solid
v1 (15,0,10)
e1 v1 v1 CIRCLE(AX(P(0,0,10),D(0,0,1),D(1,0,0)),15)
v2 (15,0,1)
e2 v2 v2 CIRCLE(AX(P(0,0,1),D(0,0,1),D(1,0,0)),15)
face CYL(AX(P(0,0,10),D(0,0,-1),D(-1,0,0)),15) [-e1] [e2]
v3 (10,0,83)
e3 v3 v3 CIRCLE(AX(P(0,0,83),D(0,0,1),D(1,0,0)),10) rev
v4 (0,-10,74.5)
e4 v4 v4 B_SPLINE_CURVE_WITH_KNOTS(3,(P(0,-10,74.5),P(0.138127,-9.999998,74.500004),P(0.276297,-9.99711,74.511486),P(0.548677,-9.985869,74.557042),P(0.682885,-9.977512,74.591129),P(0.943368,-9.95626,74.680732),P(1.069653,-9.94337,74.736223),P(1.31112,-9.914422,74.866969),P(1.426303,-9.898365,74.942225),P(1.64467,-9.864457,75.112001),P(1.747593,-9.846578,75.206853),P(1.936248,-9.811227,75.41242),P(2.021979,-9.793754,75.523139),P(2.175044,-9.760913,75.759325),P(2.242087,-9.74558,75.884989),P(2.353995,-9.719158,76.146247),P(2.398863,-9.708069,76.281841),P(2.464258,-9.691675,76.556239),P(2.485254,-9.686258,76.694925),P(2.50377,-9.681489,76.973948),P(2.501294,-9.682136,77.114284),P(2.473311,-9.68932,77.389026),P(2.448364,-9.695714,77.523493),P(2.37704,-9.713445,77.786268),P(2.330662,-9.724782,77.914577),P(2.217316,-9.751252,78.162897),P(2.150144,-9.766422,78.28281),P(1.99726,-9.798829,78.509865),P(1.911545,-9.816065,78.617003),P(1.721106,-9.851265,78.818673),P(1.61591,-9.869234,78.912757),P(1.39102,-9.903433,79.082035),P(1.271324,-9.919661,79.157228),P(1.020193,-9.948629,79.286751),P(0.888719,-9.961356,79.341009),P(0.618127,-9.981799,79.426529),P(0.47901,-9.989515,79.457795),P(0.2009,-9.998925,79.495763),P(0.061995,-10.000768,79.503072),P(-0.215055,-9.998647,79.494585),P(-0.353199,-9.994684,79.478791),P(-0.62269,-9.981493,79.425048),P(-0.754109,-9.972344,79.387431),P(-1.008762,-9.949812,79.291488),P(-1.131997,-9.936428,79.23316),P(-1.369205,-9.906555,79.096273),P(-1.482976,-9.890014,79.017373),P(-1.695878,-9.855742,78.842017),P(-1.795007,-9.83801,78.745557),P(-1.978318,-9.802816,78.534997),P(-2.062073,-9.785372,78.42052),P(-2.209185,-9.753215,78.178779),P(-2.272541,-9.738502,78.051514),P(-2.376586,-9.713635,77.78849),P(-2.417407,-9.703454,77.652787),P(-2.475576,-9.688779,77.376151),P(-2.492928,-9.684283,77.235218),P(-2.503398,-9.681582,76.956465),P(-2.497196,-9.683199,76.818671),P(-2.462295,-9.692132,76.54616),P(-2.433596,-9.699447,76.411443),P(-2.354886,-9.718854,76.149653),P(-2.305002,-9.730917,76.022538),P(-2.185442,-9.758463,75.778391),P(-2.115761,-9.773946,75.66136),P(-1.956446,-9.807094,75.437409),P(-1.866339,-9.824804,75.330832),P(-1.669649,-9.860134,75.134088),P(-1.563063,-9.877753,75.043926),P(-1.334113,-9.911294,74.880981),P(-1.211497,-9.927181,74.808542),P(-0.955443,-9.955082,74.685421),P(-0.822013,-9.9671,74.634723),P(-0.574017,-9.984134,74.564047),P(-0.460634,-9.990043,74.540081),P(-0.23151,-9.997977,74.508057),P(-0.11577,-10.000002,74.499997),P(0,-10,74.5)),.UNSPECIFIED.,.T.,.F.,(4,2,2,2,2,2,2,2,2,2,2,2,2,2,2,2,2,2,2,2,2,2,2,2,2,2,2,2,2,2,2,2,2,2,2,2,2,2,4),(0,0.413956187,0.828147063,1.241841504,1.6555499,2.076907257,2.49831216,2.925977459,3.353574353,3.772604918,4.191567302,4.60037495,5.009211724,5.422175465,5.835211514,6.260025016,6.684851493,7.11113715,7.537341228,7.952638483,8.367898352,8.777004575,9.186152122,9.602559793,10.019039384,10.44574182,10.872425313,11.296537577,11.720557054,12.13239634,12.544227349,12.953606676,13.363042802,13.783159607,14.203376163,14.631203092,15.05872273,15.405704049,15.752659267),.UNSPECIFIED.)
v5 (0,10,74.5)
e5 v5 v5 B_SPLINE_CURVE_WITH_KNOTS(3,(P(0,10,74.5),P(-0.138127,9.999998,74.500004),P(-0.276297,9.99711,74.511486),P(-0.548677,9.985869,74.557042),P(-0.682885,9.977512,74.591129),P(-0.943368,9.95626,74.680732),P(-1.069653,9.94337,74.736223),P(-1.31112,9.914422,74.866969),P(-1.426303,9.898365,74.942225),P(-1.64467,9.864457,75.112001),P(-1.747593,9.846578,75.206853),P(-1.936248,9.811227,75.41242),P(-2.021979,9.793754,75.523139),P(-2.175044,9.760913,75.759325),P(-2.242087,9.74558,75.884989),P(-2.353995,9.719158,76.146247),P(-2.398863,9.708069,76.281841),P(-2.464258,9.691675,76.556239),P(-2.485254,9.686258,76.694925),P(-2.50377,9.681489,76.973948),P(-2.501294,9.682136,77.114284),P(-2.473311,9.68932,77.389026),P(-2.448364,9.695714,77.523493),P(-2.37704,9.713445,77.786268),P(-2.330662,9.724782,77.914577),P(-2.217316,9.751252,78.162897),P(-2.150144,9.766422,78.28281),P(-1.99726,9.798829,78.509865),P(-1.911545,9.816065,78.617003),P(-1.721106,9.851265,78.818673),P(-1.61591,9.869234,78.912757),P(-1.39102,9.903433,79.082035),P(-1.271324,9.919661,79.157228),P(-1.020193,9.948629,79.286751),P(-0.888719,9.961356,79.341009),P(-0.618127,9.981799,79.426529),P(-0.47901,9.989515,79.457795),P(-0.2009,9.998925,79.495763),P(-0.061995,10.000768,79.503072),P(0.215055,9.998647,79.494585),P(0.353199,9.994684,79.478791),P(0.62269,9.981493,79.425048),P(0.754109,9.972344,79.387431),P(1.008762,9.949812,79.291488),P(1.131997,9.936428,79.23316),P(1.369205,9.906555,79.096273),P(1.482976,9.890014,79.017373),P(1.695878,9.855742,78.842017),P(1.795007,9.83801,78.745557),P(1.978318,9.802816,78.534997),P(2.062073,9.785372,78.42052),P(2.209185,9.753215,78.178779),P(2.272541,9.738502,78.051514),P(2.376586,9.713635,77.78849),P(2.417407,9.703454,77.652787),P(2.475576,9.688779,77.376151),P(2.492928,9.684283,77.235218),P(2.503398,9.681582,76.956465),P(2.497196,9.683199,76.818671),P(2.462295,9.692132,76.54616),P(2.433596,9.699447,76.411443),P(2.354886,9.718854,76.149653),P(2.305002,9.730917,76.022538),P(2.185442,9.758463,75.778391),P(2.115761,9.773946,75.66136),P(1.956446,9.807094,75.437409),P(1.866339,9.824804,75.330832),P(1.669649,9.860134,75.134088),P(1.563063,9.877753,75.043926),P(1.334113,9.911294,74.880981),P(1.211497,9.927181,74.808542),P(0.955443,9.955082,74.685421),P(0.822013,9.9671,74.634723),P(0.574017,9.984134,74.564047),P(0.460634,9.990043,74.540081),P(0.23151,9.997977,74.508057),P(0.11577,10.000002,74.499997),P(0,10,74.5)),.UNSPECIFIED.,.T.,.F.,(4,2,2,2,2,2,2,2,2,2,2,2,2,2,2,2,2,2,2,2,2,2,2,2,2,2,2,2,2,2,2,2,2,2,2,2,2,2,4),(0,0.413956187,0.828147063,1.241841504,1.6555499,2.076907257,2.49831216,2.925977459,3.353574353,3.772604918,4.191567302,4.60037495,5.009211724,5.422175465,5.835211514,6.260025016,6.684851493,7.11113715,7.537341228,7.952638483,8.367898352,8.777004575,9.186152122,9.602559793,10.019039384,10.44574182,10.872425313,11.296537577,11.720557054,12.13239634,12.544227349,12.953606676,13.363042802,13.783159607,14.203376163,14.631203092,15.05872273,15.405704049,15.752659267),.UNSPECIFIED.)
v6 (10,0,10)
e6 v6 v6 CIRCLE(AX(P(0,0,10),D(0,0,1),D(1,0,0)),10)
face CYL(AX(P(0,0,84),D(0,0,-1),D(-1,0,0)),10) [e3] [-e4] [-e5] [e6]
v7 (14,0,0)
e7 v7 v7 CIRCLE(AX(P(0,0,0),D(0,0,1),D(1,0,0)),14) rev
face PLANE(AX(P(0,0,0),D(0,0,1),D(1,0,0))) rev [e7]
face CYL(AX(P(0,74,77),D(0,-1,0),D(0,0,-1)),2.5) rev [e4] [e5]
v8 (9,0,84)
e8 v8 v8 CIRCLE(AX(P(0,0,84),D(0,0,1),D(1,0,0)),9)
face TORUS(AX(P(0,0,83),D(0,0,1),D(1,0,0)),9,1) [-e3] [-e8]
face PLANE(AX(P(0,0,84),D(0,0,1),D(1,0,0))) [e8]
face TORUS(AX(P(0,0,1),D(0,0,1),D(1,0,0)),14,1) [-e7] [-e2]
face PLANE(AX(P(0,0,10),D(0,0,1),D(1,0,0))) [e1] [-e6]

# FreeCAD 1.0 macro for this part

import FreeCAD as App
import Part
import Sketcher
from FreeCAD import Vector


def edges_at(feature, points):
    """Names of the edges that pass closest to the given points."""
    edges = feature.Shape.Edges
    near = lambda p: min(range(len(edges)), key=lambda i: edges[i].distToShape(Part.Vertex(*p))[0])
    return sorted({f"Edge{near(p) + 1}" for p in points})

doc = App.newDocument("Part")
body = doc.addObject("PartDesign::Body", "Body")

sketch1 = body.newObject("Sketcher::SketchObject", "Sketch")
sketch1.AttachmentSupport = (doc.getObject("XY_Plane"), [""])
sketch1.MapMode = "FlatFace"
sketch1.addGeometry(Part.Circle(Vector(0, 0, 0), Vector(0, 0, 1), 15), False)
sketch1.addConstraint([
    Sketcher.Constraint("Coincident", 0, 3, -1, 1),
    Sketcher.Constraint("Diameter", 0, 30.0),
])
pad1 = body.newObject("PartDesign::Pad", "Pad")
pad1.Profile = sketch1
pad1.Length = 10

sketch2 = body.newObject("Sketcher::SketchObject", "Sketch001")
sketch2.AttachmentSupport = (doc.getObject("XY_Plane"), [""])
sketch2.MapMode = "FlatFace"
sketch2.AttachmentOffset = App.Placement(Vector(0, 0, 10), App.Rotation())
sketch2.addGeometry(Part.Circle(Vector(0, 0, 0), Vector(0, 0, 1), 10), False)
sketch2.addConstraint([
    Sketcher.Constraint("Coincident", 0, 3, -1, 1),
    Sketcher.Constraint("Diameter", 0, 20.0),
])
pad2 = body.newObject("PartDesign::Pad", "Pad001")
pad2.Profile = sketch2
pad2.Length = 74

sketch3 = body.newObject("Sketcher::SketchObject", "Sketch002")
sketch3.AttachmentSupport = (doc.getObject("XZ_Plane"), [""])
sketch3.MapMode = "FlatFace"
sketch3.addGeometry(Part.Circle(Vector(0, 77, 0), Vector(0, 0, 1), 2.5), False)
sketch3.addConstraint([
    Sketcher.Constraint("PointOnObject", 0, 3, -2),
    Sketcher.Constraint("Diameter", 0, 5.0),
    Sketcher.Constraint("DistanceY", -1, 1, 0, 3, 77.0),
])
pocket1 = body.newObject("PartDesign::Pocket", "Pocket")
pocket1.Profile = sketch3
pocket1.Type = "ThroughAll"
pocket1.Midplane = True
doc.recompute()

fillet = body.newObject("PartDesign::Fillet", "Fillet")
fillet.Base = (pocket1, edges_at(pocket1, [(-15, 0, 0)]))
fillet.Radius = 1
doc.recompute()

fillet2 = body.newObject("PartDesign::Fillet", "Fillet001")
fillet2.Base = (fillet, edges_at(fillet, [(-10, 0, 84)]))
fillet2.Radius = 1

doc.recompute()
